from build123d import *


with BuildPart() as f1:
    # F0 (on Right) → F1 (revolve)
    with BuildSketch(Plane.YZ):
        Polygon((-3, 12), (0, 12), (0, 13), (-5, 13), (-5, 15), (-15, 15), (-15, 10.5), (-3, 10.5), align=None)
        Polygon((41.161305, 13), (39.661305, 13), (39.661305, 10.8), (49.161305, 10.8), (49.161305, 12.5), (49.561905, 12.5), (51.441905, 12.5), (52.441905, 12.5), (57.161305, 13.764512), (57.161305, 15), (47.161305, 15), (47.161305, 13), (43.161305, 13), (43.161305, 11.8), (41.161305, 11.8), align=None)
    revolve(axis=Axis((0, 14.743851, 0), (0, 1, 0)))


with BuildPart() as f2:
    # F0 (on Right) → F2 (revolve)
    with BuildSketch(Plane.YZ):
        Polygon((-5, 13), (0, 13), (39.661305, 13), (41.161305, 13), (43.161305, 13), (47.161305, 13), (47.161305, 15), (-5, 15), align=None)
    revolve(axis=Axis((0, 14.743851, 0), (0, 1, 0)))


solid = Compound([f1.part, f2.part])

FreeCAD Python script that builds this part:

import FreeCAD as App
import Part
import Sketcher

doc = App.newDocument("Part")
body = doc.addObject("PartDesign::Body", "Body")
body.AllowCompound = True

sketch1 = doc.addObject("Sketcher::SketchObject", "Sketch")
body.addObject(sketch1)
sketch1.AttachmentSupport = (doc.YZ_Plane, [""])
sketch1.MapMode = "FlatFace"
sketch1.addGeometry([
    Part.LineSegment(App.Vector(-3, 12, 0), App.Vector(0, 12, 0)),
    Part.LineSegment(App.Vector(0, 12, 0), App.Vector(0, 13, 0)),
    Part.LineSegment(App.Vector(0, 13, 0), App.Vector(-5, 13, 0)),
    Part.LineSegment(App.Vector(-5, 13, 0), App.Vector(-5, 15, 0)),
    Part.LineSegment(App.Vector(-5, 15, 0), App.Vector(-15, 15, 0)),
    Part.LineSegment(App.Vector(-15, 15, 0), App.Vector(-15, 10.5, 0)),
    Part.LineSegment(App.Vector(-15, 10.5, 0), App.Vector(-3, 10.5, 0)),
    Part.LineSegment(App.Vector(-3, 10.5, 0), App.Vector(-3, 12, 0)),
    Part.LineSegment(App.Vector(41.2, 13, 0), App.Vector(39.7, 13, 0)),
    Part.LineSegment(App.Vector(39.7, 13, 0), App.Vector(39.7, 10.8, 0)),
    Part.LineSegment(App.Vector(39.7, 10.8, 0), App.Vector(49.2, 10.8, 0)),
    Part.LineSegment(App.Vector(49.2, 10.8, 0), App.Vector(49.2, 12.5, 0)),
    Part.LineSegment(App.Vector(49.2, 12.5, 0), App.Vector(52.4, 12.5, 0)),
    Part.LineSegment(App.Vector(52.4, 12.5, 0), App.Vector(57.2, 13.8, 0)),
    Part.LineSegment(App.Vector(57.2, 13.8, 0), App.Vector(57.2, 15, 0)),
    Part.LineSegment(App.Vector(57.2, 15, 0), App.Vector(47.2, 15, 0)),
    Part.LineSegment(App.Vector(47.2, 15, 0), App.Vector(47.2, 13, 0)),
    Part.LineSegment(App.Vector(47.2, 13, 0), App.Vector(43.2, 13, 0)),
    Part.LineSegment(App.Vector(43.2, 13, 0), App.Vector(43.2, 11.8, 0)),
    Part.LineSegment(App.Vector(43.2, 11.8, 0), App.Vector(41.2, 11.8, 0)),
    Part.LineSegment(App.Vector(41.2, 11.8, 0), App.Vector(41.2, 13, 0)),
], False)
sketch1.addConstraint([
    Sketcher.Constraint("Coincident", 0, 2, 1, 1),
    Sketcher.Constraint("Coincident", 1, 2, 2, 1),
    Sketcher.Constraint("Coincident", 2, 2, 3, 1),
    Sketcher.Constraint("Coincident", 3, 2, 4, 1),
    Sketcher.Constraint("Coincident", 4, 2, 5, 1),
    Sketcher.Constraint("Coincident", 5, 2, 6, 1),
    Sketcher.Constraint("Coincident", 6, 2, 7, 1),
    Sketcher.Constraint("Coincident", 7, 2, 0, 1),
    Sketcher.Constraint("Coincident", 8, 2, 9, 1),
    Sketcher.Constraint("Coincident", 9, 2, 10, 1),
    Sketcher.Constraint("Coincident", 10, 2, 11, 1),
    Sketcher.Constraint("Coincident", 11, 2, 12, 1),
    Sketcher.Constraint("Coincident", 12, 2, 13, 1),
    Sketcher.Constraint("Coincident", 13, 2, 14, 1),
    Sketcher.Constraint("Coincident", 14, 2, 15, 1),
    Sketcher.Constraint("Coincident", 15, 2, 16, 1),
    Sketcher.Constraint("Coincident", 16, 2, 17, 1),
    Sketcher.Constraint("Coincident", 17, 2, 18, 1),
    Sketcher.Constraint("Coincident", 18, 2, 19, 1),
    Sketcher.Constraint("Coincident", 19, 2, 20, 1),
    Sketcher.Constraint("Coincident", 20, 2, 8, 1),
    Sketcher.Constraint("Horizontal", 0),
    Sketcher.Constraint("Vertical", 1),
    Sketcher.Constraint("Horizontal", 2),
    Sketcher.Constraint("Vertical", 3),
    Sketcher.Constraint("Horizontal", 4),
    Sketcher.Constraint("Vertical", 5),
    Sketcher.Constraint("Horizontal", 6),
    Sketcher.Constraint("Vertical", 7),
    Sketcher.Constraint("Horizontal", 8),
    Sketcher.Constraint("Vertical", 9),
    Sketcher.Constraint("Horizontal", 10),
    Sketcher.Constraint("Vertical", 11),
    Sketcher.Constraint("Horizontal", 12),
    Sketcher.Constraint("Vertical", 14),
    Sketcher.Constraint("Horizontal", 15),
    Sketcher.Constraint("Vertical", 16),
    Sketcher.Constraint("Horizontal", 17),
    Sketcher.Constraint("Vertical", 18),
    Sketcher.Constraint("Horizontal", 19),
    Sketcher.Constraint("Vertical", 20),
    Sketcher.Constraint("PointOnObject", 0, 2, -2),
    Sketcher.Constraint("Horizontal", 2, 2, 8, 2),
    Sketcher.Constraint("Horizontal", 4, 2, 14, 2),
    Sketcher.Constraint("Horizontal", 8, 2, 16, 2),
    Sketcher.Constraint("Equal", 4, 15),
    Sketcher.Constraint("Equal", 19, 3),
    Sketcher.Constraint("Equal", 8, 7),
    Sketcher.Constraint("DistanceX", 0, 1, 0, 2, 3.0),
    Sketcher.Constraint("DistanceX", 2, 2, 2, 1, 5.0),
    Sketcher.Constraint("DistanceX", 4, 2, 4, 1, 10.0),
    Sketcher.Constraint("DistanceX", 17, 2, 17, 1, 4.0),
    Sketcher.Constraint("DistanceX", 19, 2, 19, 1, 2.0),
    Sketcher.Constraint("DistanceY", 1, 1, 1, 2, 1.0),
    Sketcher.Constraint("DistanceX", 8, 2, 8, 1, 1.5),
    Sketcher.Constraint("DistanceX", 10, 1, 10, 2, 9.5),
    Sketcher.Constraint("DistanceY", 9, 2, 9, 1, 2.2),
    Sketcher.Constraint("DistanceY", 11, 1, 11, 2, 1.7),
    Sketcher.Constraint("DistanceY", 18, 2, 18, 1, 1.2),
    Sketcher.Constraint("DistanceY", -1, 1, 0, 2, 12.0),
    Sketcher.Constraint("DistanceX", 12, 1, 12, 2, 3.2806),
    Sketcher.Constraint("DistanceY", 14, 1, 14, 2, 1.235488),
    Sketcher.Constraint("DistanceX", -1, 1, 8, 2, 39.661305),
])
revolution = doc.addObject("PartDesign::Revolution", "Revolution")
body.addObject(revolution)
revolution.Profile = sketch1
revolution.ReferenceAxis = (sketch1, ["H_Axis"])
revolution.Angle = 360
body2 = doc.addObject("PartDesign::Body", "Body001")

sketch2 = doc.addObject("Sketcher::SketchObject", "Sketch001")
body2.addObject(sketch2)
sketch2.AttachmentSupport = (doc.getObject("YZ_Plane001"), [""])
sketch2.MapMode = "FlatFace"
sketch2.addGeometry([
    Part.LineSegment(App.Vector(-5, 13, 0), App.Vector(47.2, 13, 0)),
    Part.LineSegment(App.Vector(47.2, 13, 0), App.Vector(47.2, 15, 0)),
    Part.LineSegment(App.Vector(47.2, 15, 0), App.Vector(-5, 15, 0)),
    Part.LineSegment(App.Vector(-5, 15, 0), App.Vector(-5, 13, 0)),
], False)
sketch2.addConstraint([
    Sketcher.Constraint("Coincident", 0, 2, 1, 1),
    Sketcher.Constraint("Coincident", 1, 2, 2, 1),
    Sketcher.Constraint("Coincident", 2, 2, 3, 1),
    Sketcher.Constraint("Coincident", 3, 2, 0, 1),
    Sketcher.Constraint("Horizontal", 0),
    Sketcher.Constraint("Vertical", 1),
    Sketcher.Constraint("Horizontal", 2),
    Sketcher.Constraint("Vertical", 3),
    Sketcher.Constraint("DistanceY", 1, 1, 1, 2, 2.0),
    Sketcher.Constraint("DistanceY", -1, 1, 0, 2, 13.0),
    Sketcher.Constraint("DistanceX", 2, 2, -1, 1, 5.0),
    Sketcher.Constraint("DistanceX", 0, 1, 0, 2, 52.161305),
])
revolution2 = doc.addObject("PartDesign::Revolution", "Revolution001")
body2.addObject(revolution2)
revolution2.Profile = sketch2
revolution2.ReferenceAxis = (sketch2, ["H_Axis"])
revolution2.Angle = 360

doc.recompute()
